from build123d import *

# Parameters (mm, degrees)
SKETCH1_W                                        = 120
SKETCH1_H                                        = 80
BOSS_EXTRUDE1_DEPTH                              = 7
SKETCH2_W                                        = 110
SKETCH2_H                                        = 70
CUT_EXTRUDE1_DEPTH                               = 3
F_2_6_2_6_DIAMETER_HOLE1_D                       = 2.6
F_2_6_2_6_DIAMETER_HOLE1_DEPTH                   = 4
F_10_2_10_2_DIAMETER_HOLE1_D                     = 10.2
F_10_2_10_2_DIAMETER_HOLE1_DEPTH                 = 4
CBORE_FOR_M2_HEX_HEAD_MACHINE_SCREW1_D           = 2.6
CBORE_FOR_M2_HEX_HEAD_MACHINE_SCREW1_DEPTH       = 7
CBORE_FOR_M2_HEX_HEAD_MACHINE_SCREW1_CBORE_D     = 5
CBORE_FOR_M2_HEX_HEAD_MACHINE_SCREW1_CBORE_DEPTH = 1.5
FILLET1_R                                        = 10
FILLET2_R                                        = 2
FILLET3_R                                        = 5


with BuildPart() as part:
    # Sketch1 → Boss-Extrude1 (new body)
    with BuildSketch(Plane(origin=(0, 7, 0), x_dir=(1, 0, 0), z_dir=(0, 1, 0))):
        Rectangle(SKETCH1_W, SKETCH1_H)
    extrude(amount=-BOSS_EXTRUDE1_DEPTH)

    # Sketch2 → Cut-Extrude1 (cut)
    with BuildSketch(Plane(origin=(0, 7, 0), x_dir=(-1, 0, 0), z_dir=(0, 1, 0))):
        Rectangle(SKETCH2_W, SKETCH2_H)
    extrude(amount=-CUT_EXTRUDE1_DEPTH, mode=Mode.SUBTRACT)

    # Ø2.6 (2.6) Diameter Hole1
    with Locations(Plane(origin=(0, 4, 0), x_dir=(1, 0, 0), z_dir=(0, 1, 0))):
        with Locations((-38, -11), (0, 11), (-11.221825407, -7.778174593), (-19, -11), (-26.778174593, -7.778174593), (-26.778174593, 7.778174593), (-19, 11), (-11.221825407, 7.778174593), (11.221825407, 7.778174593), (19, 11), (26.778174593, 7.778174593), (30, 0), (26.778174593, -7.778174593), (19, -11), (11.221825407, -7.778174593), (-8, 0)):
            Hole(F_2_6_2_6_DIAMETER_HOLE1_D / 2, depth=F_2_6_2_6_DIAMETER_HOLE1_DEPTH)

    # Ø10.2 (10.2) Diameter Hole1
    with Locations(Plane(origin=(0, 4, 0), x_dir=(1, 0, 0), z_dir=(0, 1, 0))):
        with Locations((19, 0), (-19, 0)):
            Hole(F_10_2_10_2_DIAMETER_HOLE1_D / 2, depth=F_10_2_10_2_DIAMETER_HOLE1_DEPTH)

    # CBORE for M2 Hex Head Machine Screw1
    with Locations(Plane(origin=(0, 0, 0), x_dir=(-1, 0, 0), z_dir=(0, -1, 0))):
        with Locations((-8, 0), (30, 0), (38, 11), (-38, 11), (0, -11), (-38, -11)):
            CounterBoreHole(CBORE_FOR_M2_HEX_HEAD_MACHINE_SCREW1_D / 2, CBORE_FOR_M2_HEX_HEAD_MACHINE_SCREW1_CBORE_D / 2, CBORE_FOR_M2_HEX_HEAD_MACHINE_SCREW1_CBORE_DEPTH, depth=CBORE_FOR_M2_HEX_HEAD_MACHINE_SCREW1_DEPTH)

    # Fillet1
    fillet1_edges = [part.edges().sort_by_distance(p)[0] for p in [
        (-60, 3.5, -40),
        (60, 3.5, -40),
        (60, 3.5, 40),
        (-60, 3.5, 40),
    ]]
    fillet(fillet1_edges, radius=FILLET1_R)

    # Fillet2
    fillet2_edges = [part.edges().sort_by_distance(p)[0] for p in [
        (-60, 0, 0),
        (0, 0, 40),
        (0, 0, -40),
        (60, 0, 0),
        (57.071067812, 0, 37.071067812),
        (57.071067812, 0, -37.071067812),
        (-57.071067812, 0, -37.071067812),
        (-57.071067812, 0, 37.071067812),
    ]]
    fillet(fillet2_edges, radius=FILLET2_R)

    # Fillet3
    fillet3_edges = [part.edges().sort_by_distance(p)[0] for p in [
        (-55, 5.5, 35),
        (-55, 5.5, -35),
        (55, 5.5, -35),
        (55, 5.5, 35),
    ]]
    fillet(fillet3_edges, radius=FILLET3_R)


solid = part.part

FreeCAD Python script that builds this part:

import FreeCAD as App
import Part
import Sketcher
from FreeCAD import Vector


def edges_at(feature, points):
    """Names of the edges that pass closest to the given points."""
    edges = feature.Shape.Edges
    near = lambda p: min(range(len(edges)), key=lambda i: edges[i].distToShape(Part.Vertex(*p))[0])
    return sorted({f"Edge{near(p) + 1}" for p in points})

doc = App.newDocument("Part")
body = doc.addObject("PartDesign::Body", "Body")

# Sketch on XZ plane
sketch1 = body.newObject("Sketcher::SketchObject", "Sketch")
sketch1.AttachmentSupport = (doc.getObject("XZ_Plane"), [""])
sketch1.MapMode = "FlatFace"
sketch1.AttachmentOffset = App.Placement(Vector(0, 0, -7), App.Rotation())
sketch1.addGeometry(Part.LineSegment(Vector(-60, -40, 0), Vector(-60, 40, 0)), False)
sketch1.addGeometry(Part.LineSegment(Vector(-60, 40, 0), Vector(60, 40, 0)), False)
sketch1.addGeometry(Part.LineSegment(Vector(60, 40, 0), Vector(60, -40, 0)), False)
sketch1.addGeometry(Part.LineSegment(Vector(60, -40, 0), Vector(-60, -40, 0)), False)
sketch1.addConstraint(Sketcher.Constraint("Coincident", 0, 2, 1, 1))
sketch1.addConstraint(Sketcher.Constraint("Coincident", 1, 2, 2, 1))
sketch1.addConstraint(Sketcher.Constraint("Coincident", 2, 2, 3, 1))
sketch1.addConstraint(Sketcher.Constraint("Coincident", 3, 2, 0, 1))
sketch1.addConstraint(Sketcher.Constraint("Vertical", 0))
sketch1.addConstraint(Sketcher.Constraint("Horizontal", 1))
sketch1.addConstraint(Sketcher.Constraint("Vertical", 2))
sketch1.addConstraint(Sketcher.Constraint("Horizontal", 3))
sketch1.addConstraint(Sketcher.Constraint("Symmetric", 0, 2, 2, 2, -1, 1))
sketch1.addConstraint(Sketcher.Constraint("DistanceX", 1, 1, 1, 2, 120.0))
sketch1.addConstraint(Sketcher.Constraint("DistanceY", 0, 1, 0, 2, 80.0))
pad1 = body.newObject("PartDesign::Pad", "Pad")
pad1.Profile = sketch1
pad1.Length = 7

# Sketch on XZ plane
sketch2 = body.newObject("Sketcher::SketchObject", "Sketch001")
sketch2.AttachmentSupport = (doc.getObject("XZ_Plane"), [""])
sketch2.MapMode = "FlatFace"
sketch2.AttachmentOffset = App.Placement(Vector(0, 0, -7), App.Rotation())
sketch2.addGeometry(Part.LineSegment(Vector(55, 35, 0), Vector(55, -35, 0)), False)
sketch2.addGeometry(Part.LineSegment(Vector(55, -35, 0), Vector(-55, -35, 0)), False)
sketch2.addGeometry(Part.LineSegment(Vector(-55, -35, 0), Vector(-55, 35, 0)), False)
sketch2.addGeometry(Part.LineSegment(Vector(-55, 35, 0), Vector(55, 35, 0)), False)
sketch2.addConstraint(Sketcher.Constraint("Coincident", 0, 2, 1, 1))
sketch2.addConstraint(Sketcher.Constraint("Coincident", 1, 2, 2, 1))
sketch2.addConstraint(Sketcher.Constraint("Coincident", 2, 2, 3, 1))
sketch2.addConstraint(Sketcher.Constraint("Coincident", 3, 2, 0, 1))
sketch2.addConstraint(Sketcher.Constraint("Vertical", 0))
sketch2.addConstraint(Sketcher.Constraint("Horizontal", 1))
sketch2.addConstraint(Sketcher.Constraint("Vertical", 2))
sketch2.addConstraint(Sketcher.Constraint("Horizontal", 3))
sketch2.addConstraint(Sketcher.Constraint("Symmetric", 0, 2, 2, 2, -1, 1))
sketch2.addConstraint(Sketcher.Constraint("DistanceX", 1, 2, 1, 1, 110.0))
sketch2.addConstraint(Sketcher.Constraint("DistanceY", 0, 2, 0, 1, 70.0))
pocket1 = body.newObject("PartDesign::Pocket", "Pocket")
pocket1.Profile = sketch2
pocket1.Length = 3
pocket1.Reversed = True

# Sketch on XZ plane
sketch3 = body.newObject("Sketcher::SketchObject", "Sketch002")
sketch3.AttachmentSupport = (doc.getObject("XZ_Plane"), [""])
sketch3.MapMode = "FlatFace"
sketch3.AttachmentOffset = App.Placement(Vector(0, 0, -4), App.Rotation())
sketch3.addGeometry(Part.Circle(Vector(-38, 11, 0), Vector(0, 0, 1), 1.3), False)
sketch3.addGeometry(Part.Circle(Vector(0, -11, 0), Vector(0, 0, 1), 1.3), False)
sketch3.addGeometry(Part.Circle(Vector(-11.2, 7.8, 0), Vector(0, 0, 1), 1.3), False)
sketch3.addGeometry(Part.Circle(Vector(-19, 11, 0), Vector(0, 0, 1), 1.3), False)
sketch3.addGeometry(Part.Circle(Vector(-26.8, 7.8, 0), Vector(0, 0, 1), 1.3), False)
sketch3.addGeometry(Part.Circle(Vector(-26.8, -7.8, 0), Vector(0, 0, 1), 1.3), False)
sketch3.addGeometry(Part.Circle(Vector(-19, -11, 0), Vector(0, 0, 1), 1.3), False)
sketch3.addGeometry(Part.Circle(Vector(-11.2, -7.8, 0), Vector(0, 0, 1), 1.3), False)
sketch3.addGeometry(Part.Circle(Vector(11.2, -7.8, 0), Vector(0, 0, 1), 1.3), False)
sketch3.addGeometry(Part.Circle(Vector(19, -11, 0), Vector(0, 0, 1), 1.3), False)
sketch3.addGeometry(Part.Circle(Vector(26.8, -7.8, 0), Vector(0, 0, 1), 1.3), False)
sketch3.addGeometry(Part.Circle(Vector(30, 0, 0), Vector(0, 0, 1), 1.3), False)
sketch3.addGeometry(Part.Circle(Vector(26.8, 7.8, 0), Vector(0, 0, 1), 1.3), False)
sketch3.addGeometry(Part.Circle(Vector(19, 11, 0), Vector(0, 0, 1), 1.3), False)
sketch3.addGeometry(Part.Circle(Vector(11.2, 7.8, 0), Vector(0, 0, 1), 1.3), False)
sketch3.addGeometry(Part.Circle(Vector(-8, 0, 0), Vector(0, 0, 1), 1.3), False)
sketch3.addConstraint(Sketcher.Constraint("Equal", 0, 1))
sketch3.addConstraint(Sketcher.Constraint("Equal", 1, 2))
sketch3.addConstraint(Sketcher.Constraint("Equal", 2, 3))
sketch3.addConstraint(Sketcher.Constraint("Equal", 3, 4))
sketch3.addConstraint(Sketcher.Constraint("Equal", 4, 5))
sketch3.addConstraint(Sketcher.Constraint("Equal", 5, 6))
sketch3.addConstraint(Sketcher.Constraint("Equal", 6, 7))
sketch3.addConstraint(Sketcher.Constraint("Equal", 7, 8))
sketch3.addConstraint(Sketcher.Constraint("Equal", 8, 9))
sketch3.addConstraint(Sketcher.Constraint("Equal", 9, 10))
sketch3.addConstraint(Sketcher.Constraint("Equal", 10, 11))
sketch3.addConstraint(Sketcher.Constraint("Equal", 11, 12))
sketch3.addConstraint(Sketcher.Constraint("Equal", 12, 13))
sketch3.addConstraint(Sketcher.Constraint("Equal", 13, 14))
sketch3.addConstraint(Sketcher.Constraint("Equal", 14, 15))
sketch3.addConstraint(Sketcher.Constraint("Symmetric", 2, 3, 8, 3, -1, 1))
sketch3.addConstraint(Sketcher.Constraint("Symmetric", 3, 3, 9, 3, -1, 1))
sketch3.addConstraint(Sketcher.Constraint("Symmetric", 4, 3, 10, 3, -1, 1))
sketch3.addConstraint(Sketcher.Constraint("Symmetric", 5, 3, 12, 3, -1, 1))
sketch3.addConstraint(Sketcher.Constraint("Symmetric", 6, 3, 13, 3, -1, 1))
sketch3.addConstraint(Sketcher.Constraint("Symmetric", 7, 3, 14, 3, -1, 1))
sketch3.addConstraint(Sketcher.Constraint("Symmetric", 7, 3, 8, 3, -2))
sketch3.addConstraint(Sketcher.Constraint("Symmetric", 6, 3, 9, 3, -2))
sketch3.addConstraint(Sketcher.Constraint("Symmetric", 5, 3, 10, 3, -2))
sketch3.addConstraint(Sketcher.Constraint("PointOnObject", 1, 3, -2))
sketch3.addConstraint(Sketcher.Constraint("PointOnObject", 11, 3, -1))
sketch3.addConstraint(Sketcher.Constraint("PointOnObject", 15, 3, -1))
sketch3.addConstraint(Sketcher.Constraint("Horizontal", 0, 3, 3, 3))
sketch3.addConstraint(Sketcher.Constraint("Horizontal", 2, 3, 4, 3))
sketch3.addConstraint(Sketcher.Constraint("Horizontal", 1, 3, 6, 3))
sketch3.addConstraint(Sketcher.Constraint("Diameter", 0, 2.6))
sketch3.addConstraint(Sketcher.Constraint("DistanceX", 0, 3, -1, 1, 38.0))
sketch3.addConstraint(Sketcher.Constraint("DistanceY", -1, 1, 0, 3, 11.0))
sketch3.addConstraint(Sketcher.Constraint("DistanceX", 3, 3, -1, 1, 19.0))
sketch3.addConstraint(Sketcher.Constraint("DistanceX", -1, 1, 11, 3, 30.0))
sketch3.addConstraint(Sketcher.Constraint("DistanceX", 15, 3, -1, 1, 8.0))
sketch3.addConstraint(Sketcher.Constraint("DistanceX", 7, 3, 10, 3, 38.0))
sketch3.addConstraint(Sketcher.Constraint("DistanceX", 4, 3, 2, 3, 15.556349))
sketch3.addConstraint(Sketcher.Constraint("DistanceY", 5, 3, 4, 3, 15.556349))
doc.recompute()
hole = body.newObject("PartDesign::Hole", "Hole")
hole.Profile = sketch3
hole.ThreadType = "None"
hole.Diameter = 2.6
hole.DepthType = "Dimension"
hole.Depth = 4
hole.DrillPoint = "Flat"
hole.Reversed = True

# Sketch on XZ plane
sketch4 = body.newObject("Sketcher::SketchObject", "Sketch003")
sketch4.AttachmentSupport = (doc.getObject("XZ_Plane"), [""])
sketch4.MapMode = "FlatFace"
sketch4.AttachmentOffset = App.Placement(Vector(0, 0, -4), App.Rotation())
sketch4.addGeometry(Part.Circle(Vector(19, 0, 0), Vector(0, 0, 1), 5), False)
sketch4.addGeometry(Part.Circle(Vector(-19, 0, 0), Vector(0, 0, 1), 5), False)
sketch4.addConstraint(Sketcher.Constraint("Equal", 0, 1))
sketch4.addConstraint(Sketcher.Constraint("Symmetric", 0, 3, 1, 3, -1, 1))
sketch4.addConstraint(Sketcher.Constraint("PointOnObject", 0, 3, -1))
sketch4.addConstraint(Sketcher.Constraint("Diameter", 0, 10.2))
sketch4.addConstraint(Sketcher.Constraint("DistanceX", -1, 1, 0, 3, 19.0))
doc.recompute()
hole2 = body.newObject("PartDesign::Hole", "Hole001")
hole2.Profile = sketch4
hole2.ThreadType = "None"
hole2.Diameter = 10.2
hole2.DepthType = "Dimension"
hole2.Depth = 4
hole2.DrillPoint = "Flat"
hole2.Reversed = True

# Sketch on XZ plane
sketch5 = body.newObject("Sketcher::SketchObject", "Sketch004")
sketch5.AttachmentSupport = (doc.getObject("XZ_Plane"), [""])
sketch5.MapMode = "FlatFace"
sketch5.addGeometry(Part.Circle(Vector(8, 0, 0), Vector(0, 0, 1), 1.3), False)
sketch5.addGeometry(Part.Circle(Vector(-30, 0, 0), Vector(0, 0, 1), 1.3), False)
sketch5.addGeometry(Part.Circle(Vector(-38, -11, 0), Vector(0, 0, 1), 1.3), False)
sketch5.addGeometry(Part.Circle(Vector(38, -11, 0), Vector(0, 0, 1), 1.3), False)
sketch5.addGeometry(Part.Circle(Vector(0, 11, 0), Vector(0, 0, 1), 1.3), False)
sketch5.addGeometry(Part.Circle(Vector(38, 11, 0), Vector(0, 0, 1), 1.3), False)
sketch5.addConstraint(Sketcher.Constraint("Equal", 0, 1))
sketch5.addConstraint(Sketcher.Constraint("Equal", 1, 2))
sketch5.addConstraint(Sketcher.Constraint("Equal", 2, 3))
sketch5.addConstraint(Sketcher.Constraint("Equal", 3, 4))
sketch5.addConstraint(Sketcher.Constraint("Equal", 4, 5))
sketch5.addConstraint(Sketcher.Constraint("Symmetric", 2, 3, 5, 3, -1, 1))
sketch5.addConstraint(Sketcher.Constraint("Symmetric", 2, 3, 3, 3, -2))
sketch5.addConstraint(Sketcher.Constraint("PointOnObject", 0, 3, -1))
sketch5.addConstraint(Sketcher.Constraint("PointOnObject", 1, 3, -1))
sketch5.addConstraint(Sketcher.Constraint("PointOnObject", 4, 3, -2))
sketch5.addConstraint(Sketcher.Constraint("Horizontal", 4, 3, 5, 3))
sketch5.addConstraint(Sketcher.Constraint("Diameter", 0, 2.6))
sketch5.addConstraint(Sketcher.Constraint("DistanceX", -1, 1, 0, 3, 8.0))
sketch5.addConstraint(Sketcher.Constraint("DistanceX", 1, 3, -1, 1, 30.0))
sketch5.addConstraint(Sketcher.Constraint("DistanceX", 2, 3, -1, 1, 38.0))
sketch5.addConstraint(Sketcher.Constraint("DistanceY", 2, 3, -1, 1, 11.0))
doc.recompute()
hole3 = body.newObject("PartDesign::Hole", "Hole002")
hole3.Profile = sketch5
hole3.ThreadType = "None"
hole3.Diameter = 2.6
hole3.DepthType = "Dimension"
hole3.Depth = 7
hole3.DrillPoint = "Flat"
hole3.HoleCutType = "Counterbore"
hole3.HoleCutDiameter = 5
hole3.HoleCutDepth = 1.5
doc.recompute()

fillet = body.newObject("PartDesign::Fillet", "Fillet")
fillet.Base = (hole3, edges_at(hole3, [
    (-60, 3.5, -40),
    (60, 3.5, -40),
    (60, 3.5, 40),
    (-60, 3.5, 40),
]))
fillet.Radius = 10
doc.recompute()

fillet2 = body.newObject("PartDesign::Fillet", "Fillet001")
fillet2.Base = (fillet, edges_at(fillet, [
    (-60, 0, 0),
    (0, 0, 40),
    (0, 0, -40),
    (60, 0, 0),
    (57.071, 0, 37.071),
    (57.071, 0, -37.071),
    (-57.071, 0, -37.071),
    (-57.071, 0, 37.071),
]))
fillet2.Radius = 2
doc.recompute()

fillet3 = body.newObject("PartDesign::Fillet", "Fillet002")
fillet3.Base = (fillet2, edges_at(fillet2, [
    (-55, 5.5, 35),
    (-55, 5.5, -35),
    (55, 5.5, -35),
    (55, 5.5, 35),
]))
fillet3.Radius = 5

doc.recompute()
